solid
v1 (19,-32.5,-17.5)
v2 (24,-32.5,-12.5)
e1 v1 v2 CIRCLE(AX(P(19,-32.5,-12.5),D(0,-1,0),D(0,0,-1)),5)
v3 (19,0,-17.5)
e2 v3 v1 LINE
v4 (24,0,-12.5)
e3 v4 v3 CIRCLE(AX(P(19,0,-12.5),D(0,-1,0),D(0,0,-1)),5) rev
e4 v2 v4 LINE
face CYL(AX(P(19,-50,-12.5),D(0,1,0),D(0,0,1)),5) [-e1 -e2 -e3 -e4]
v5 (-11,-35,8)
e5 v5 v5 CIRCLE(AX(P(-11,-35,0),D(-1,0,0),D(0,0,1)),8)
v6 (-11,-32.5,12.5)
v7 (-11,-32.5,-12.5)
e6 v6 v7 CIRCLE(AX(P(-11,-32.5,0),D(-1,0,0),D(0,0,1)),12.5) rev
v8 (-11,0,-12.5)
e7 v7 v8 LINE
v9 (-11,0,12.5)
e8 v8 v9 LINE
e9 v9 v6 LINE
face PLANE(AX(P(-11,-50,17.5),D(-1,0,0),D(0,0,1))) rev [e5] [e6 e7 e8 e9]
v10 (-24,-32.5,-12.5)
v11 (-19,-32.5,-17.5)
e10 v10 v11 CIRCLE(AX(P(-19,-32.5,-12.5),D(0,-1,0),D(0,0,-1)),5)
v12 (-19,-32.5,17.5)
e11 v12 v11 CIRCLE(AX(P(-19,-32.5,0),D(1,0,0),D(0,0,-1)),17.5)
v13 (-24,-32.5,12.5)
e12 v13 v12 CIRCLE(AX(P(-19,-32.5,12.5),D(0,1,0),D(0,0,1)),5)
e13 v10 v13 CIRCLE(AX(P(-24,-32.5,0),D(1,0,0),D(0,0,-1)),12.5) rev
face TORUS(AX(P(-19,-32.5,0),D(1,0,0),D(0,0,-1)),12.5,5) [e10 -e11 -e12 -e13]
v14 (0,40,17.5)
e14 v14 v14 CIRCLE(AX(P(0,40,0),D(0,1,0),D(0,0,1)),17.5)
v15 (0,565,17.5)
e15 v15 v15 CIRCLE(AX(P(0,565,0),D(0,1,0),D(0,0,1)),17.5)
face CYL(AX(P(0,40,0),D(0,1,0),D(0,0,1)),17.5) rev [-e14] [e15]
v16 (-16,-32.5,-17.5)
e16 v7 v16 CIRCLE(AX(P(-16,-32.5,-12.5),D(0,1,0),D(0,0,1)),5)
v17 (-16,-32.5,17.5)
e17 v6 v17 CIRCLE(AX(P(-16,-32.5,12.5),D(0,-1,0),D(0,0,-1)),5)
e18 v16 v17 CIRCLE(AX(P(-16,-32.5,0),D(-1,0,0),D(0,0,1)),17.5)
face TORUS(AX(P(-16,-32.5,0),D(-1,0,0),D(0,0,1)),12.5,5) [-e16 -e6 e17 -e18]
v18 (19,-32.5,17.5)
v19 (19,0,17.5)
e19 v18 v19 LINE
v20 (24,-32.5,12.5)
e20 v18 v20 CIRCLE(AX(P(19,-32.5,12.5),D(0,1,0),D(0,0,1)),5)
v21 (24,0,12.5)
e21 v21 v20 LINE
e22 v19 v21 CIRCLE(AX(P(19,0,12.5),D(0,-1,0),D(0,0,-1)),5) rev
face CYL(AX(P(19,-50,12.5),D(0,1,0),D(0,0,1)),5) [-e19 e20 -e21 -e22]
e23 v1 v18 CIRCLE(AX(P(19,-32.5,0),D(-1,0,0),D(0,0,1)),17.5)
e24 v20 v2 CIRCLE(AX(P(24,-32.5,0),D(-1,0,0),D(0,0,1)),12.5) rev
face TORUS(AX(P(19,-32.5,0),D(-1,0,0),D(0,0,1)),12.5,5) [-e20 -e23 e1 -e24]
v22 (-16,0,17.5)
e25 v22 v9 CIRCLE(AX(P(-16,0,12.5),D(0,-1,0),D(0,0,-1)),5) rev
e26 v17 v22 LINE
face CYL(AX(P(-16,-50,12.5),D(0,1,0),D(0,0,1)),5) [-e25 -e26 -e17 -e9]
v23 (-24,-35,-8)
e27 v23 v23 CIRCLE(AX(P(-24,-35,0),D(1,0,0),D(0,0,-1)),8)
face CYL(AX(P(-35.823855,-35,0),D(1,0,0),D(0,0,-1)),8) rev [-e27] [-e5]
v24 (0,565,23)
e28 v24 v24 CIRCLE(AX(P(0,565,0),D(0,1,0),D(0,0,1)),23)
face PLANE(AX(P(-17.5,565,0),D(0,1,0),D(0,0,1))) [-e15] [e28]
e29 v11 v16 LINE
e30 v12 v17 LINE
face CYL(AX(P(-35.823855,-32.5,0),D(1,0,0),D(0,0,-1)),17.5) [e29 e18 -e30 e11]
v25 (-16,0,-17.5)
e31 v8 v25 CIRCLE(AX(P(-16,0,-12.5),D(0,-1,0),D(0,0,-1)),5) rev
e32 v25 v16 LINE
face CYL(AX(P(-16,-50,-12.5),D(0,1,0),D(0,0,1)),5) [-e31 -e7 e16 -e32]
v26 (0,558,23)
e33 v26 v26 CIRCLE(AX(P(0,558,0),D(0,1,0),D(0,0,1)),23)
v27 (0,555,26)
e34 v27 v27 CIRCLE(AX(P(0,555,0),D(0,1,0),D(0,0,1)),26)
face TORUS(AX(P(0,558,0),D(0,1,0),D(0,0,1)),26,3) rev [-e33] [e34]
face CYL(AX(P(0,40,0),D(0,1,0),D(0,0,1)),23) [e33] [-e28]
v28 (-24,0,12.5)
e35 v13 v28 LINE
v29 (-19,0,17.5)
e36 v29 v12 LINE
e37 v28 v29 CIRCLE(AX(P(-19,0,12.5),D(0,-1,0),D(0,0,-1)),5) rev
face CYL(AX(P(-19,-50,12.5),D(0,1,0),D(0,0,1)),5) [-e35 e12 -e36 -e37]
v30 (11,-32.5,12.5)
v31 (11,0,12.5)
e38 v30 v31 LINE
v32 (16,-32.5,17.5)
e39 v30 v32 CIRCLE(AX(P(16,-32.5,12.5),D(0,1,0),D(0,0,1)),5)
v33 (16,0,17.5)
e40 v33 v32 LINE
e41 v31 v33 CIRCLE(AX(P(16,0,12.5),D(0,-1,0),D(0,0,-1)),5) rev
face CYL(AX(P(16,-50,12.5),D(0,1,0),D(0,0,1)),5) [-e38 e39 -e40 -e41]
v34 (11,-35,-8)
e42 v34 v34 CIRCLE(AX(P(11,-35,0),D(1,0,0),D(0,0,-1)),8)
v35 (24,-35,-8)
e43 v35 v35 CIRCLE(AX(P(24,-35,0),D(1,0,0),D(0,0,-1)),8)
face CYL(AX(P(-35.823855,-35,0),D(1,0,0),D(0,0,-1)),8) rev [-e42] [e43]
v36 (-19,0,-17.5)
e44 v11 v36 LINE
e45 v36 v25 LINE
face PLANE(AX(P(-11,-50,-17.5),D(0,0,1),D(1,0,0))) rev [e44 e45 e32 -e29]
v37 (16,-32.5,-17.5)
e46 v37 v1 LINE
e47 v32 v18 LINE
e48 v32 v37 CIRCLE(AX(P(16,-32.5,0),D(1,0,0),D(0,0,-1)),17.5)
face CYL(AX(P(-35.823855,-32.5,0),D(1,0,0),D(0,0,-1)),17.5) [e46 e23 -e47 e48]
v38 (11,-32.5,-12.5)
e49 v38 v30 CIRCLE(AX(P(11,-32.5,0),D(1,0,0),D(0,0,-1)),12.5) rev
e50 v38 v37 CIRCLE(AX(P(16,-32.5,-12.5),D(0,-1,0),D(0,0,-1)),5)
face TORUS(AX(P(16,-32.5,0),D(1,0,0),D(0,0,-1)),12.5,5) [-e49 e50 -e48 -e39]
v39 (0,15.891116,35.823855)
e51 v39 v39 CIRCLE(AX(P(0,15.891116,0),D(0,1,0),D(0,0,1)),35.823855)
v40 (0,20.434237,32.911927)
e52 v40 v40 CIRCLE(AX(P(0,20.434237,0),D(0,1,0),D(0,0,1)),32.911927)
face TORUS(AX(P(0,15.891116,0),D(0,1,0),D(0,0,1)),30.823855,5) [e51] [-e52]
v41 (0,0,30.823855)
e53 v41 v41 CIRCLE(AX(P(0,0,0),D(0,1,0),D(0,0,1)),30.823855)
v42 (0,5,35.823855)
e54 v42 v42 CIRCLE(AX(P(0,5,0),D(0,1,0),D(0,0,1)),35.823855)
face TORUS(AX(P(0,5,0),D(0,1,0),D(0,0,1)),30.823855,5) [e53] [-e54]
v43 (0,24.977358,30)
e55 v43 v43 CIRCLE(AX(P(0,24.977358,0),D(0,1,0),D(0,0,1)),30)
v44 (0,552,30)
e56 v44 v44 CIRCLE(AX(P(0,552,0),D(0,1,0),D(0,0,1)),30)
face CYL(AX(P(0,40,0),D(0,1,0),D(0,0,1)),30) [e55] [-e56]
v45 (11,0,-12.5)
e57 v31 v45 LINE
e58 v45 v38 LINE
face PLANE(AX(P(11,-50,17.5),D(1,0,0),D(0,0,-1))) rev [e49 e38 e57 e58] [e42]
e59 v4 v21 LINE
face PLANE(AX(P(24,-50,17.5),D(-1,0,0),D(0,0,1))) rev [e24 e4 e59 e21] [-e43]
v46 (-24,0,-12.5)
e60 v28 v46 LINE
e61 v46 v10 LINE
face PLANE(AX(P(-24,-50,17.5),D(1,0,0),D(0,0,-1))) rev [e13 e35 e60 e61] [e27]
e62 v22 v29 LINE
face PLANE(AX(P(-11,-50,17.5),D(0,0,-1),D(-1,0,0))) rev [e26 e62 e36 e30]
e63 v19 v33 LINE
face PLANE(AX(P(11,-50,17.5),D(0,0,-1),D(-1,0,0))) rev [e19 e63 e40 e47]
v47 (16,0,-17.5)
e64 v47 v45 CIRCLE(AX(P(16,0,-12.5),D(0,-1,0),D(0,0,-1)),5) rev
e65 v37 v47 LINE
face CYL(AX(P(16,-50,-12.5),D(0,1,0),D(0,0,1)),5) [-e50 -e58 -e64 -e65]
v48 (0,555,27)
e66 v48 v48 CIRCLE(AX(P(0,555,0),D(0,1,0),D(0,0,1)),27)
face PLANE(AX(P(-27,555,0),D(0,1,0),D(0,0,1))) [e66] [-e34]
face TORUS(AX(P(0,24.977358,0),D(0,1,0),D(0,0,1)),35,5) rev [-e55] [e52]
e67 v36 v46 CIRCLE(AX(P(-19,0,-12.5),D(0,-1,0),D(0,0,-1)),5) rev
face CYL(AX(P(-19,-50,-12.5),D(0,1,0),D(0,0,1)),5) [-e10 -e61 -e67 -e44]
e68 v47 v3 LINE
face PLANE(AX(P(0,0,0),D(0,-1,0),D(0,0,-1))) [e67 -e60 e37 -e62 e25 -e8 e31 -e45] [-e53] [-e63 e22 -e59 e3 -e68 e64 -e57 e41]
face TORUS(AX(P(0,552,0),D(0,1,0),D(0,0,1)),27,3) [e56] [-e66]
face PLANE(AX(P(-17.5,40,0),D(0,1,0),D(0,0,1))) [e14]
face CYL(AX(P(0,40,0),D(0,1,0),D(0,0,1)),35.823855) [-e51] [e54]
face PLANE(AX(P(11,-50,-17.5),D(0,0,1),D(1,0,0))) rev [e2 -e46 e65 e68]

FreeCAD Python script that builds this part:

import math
import FreeCAD as App
import Part
import Sketcher

V = App.Vector
Q = App.Units.Quantity


def edges_at(feature, points):
    """Names of the edges that pass closest to the given points."""
    edges = feature.Shape.Edges
    near = lambda p: min(range(len(edges)), key=lambda i: edges[i].distToShape(Part.Vertex(*p))[0])
    return sorted({f"Edge{near(p) + 1}" for p in points})


def add_polygon(sketch, points):
    """Adds a closed chain of lines whose ends are joined by coincident constraints."""
    first, n = sketch.GeometryCount, len(points)
    for a, b in zip(points, points[1:] + points[:1]):
        sketch.addGeometry(Part.LineSegment(App.Vector(*a, 0), App.Vector(*b, 0)), False)
    for i in range(n):
        sketch.addConstraint(Sketcher.Constraint("Coincident", first + i, 2, first + (i + 1) % n, 1))

doc = App.newDocument("Part")
body = doc.addObject("PartDesign::Body", "Body")

sketch1 = body.newObject("Sketcher::SketchObject", "Sketch")
sketch1.AttachmentSupport = (doc.getObject("XY_Plane"), [""])
sketch1.MapMode = "FlatFace"
sketch1.addGeometry([
    Part.LineSegment(V(-30, 552, 0), V(-30, 25, 0)),
    Part.ArcOfCircle(Part.Circle(V(-35, 25, 0), V(0, 0, 1), 5), math.radians(-65), math.radians(0)),
    Part.ArcOfCircle(Part.Circle(V(-30.8, 15.9, 0), V(0, 0, 1), 5), math.radians(115), math.radians(180)),
    Part.LineSegment(V(-35.8, 15.9, 0), V(-35.8, 5, 0)),
    Part.ArcOfCircle(Part.Circle(V(-30.8, 5, 0), V(0, 0, 1), 5), math.radians(180), math.radians(270)),
    Part.LineSegment(V(-30.8, 0, 0), V(0, 0, 0)),
    Part.LineSegment(V(0, 0, 0), V(0, 40, 0)),
    Part.LineSegment(V(0, 40, 0), V(-17.5, 40, 0)),
    Part.LineSegment(V(-17.5, 40, 0), V(-17.5, 565, 0)),
    Part.LineSegment(V(-17.5, 565, 0), V(-23, 565, 0)),
    Part.LineSegment(V(-23, 565, 0), V(-23, 558, 0)),
    Part.ArcOfCircle(Part.Circle(V(-26, 558, 0), V(0, 0, 1), 3), math.radians(-90), math.radians(0)),
    Part.LineSegment(V(-26, 555, 0), V(-27, 555, 0)),
    Part.ArcOfCircle(Part.Circle(V(-27, 552, 0), V(0, 0, 1), 3), math.radians(90), math.radians(180)),
], False)
sketch1.addConstraint([
    Sketcher.Constraint("Tangent", 0, 2, 1, 2),
    Sketcher.Constraint("Tangent", 1, 1, 2, 1),
    Sketcher.Constraint("Tangent", 2, 2, 3, 1),
    Sketcher.Constraint("Tangent", 3, 2, 4, 1),
    Sketcher.Constraint("Tangent", 4, 2, 5, 1),
    Sketcher.Constraint("Coincident", 5, 2, 6, 1),
    Sketcher.Constraint("Coincident", 6, 2, 7, 1),
    Sketcher.Constraint("Coincident", 7, 2, 8, 1),
    Sketcher.Constraint("Coincident", 8, 2, 9, 1),
    Sketcher.Constraint("Coincident", 9, 2, 10, 1),
    Sketcher.Constraint("Tangent", 10, 2, 11, 2),
    Sketcher.Constraint("Tangent", 11, 1, 12, 1),
    Sketcher.Constraint("Tangent", 12, 2, 13, 1),
    Sketcher.Constraint("Tangent", 13, 2, 0, 1),
    Sketcher.Constraint("Vertical", 0),
    Sketcher.Constraint("Vertical", 3),
    Sketcher.Constraint("Horizontal", 5),
    Sketcher.Constraint("Vertical", 6),
    Sketcher.Constraint("Horizontal", 7),
    Sketcher.Constraint("Vertical", 8),
    Sketcher.Constraint("Horizontal", 9),
    Sketcher.Constraint("Vertical", 10),
    Sketcher.Constraint("Horizontal", 12),
    Sketcher.Constraint("Coincident", 5, 2, -1, 1),
    Sketcher.Constraint("Equal", 1, 2),
    Sketcher.Constraint("Equal", 2, 4),
    Sketcher.Constraint("Equal", 11, 13),
    Sketcher.Constraint("Radius", 1, Q("5 mm")),
    Sketcher.Constraint("Radius", 11, Q("3 mm")),
    Sketcher.Constraint("DistanceX", 12, 2, 12, 1, Q("1 mm")),
    Sketcher.Constraint("DistanceY", 6, 1, 6, 2, Q("40 mm")),
    Sketcher.Constraint("DistanceY", 8, 1, 8, 2, Q("525 mm")),
    Sketcher.Constraint("DistanceY", 10, 2, 10, 1, Q("7 mm")),
    Sketcher.Constraint("DistanceX", 7, 2, 7, 1, Q("17.5 mm")),
    Sketcher.Constraint("DistanceX", 9, 2, 9, 1, Q("5.5 mm")),
    Sketcher.Constraint("DistanceY", 0, 2, 0, 1, Q("527.022642 mm")),
    Sketcher.Constraint("DistanceX", 5, 1, 5, 2, Q("30.823855 mm")),
])
revolution = body.newObject("PartDesign::Revolution", "Revolution")
revolution.Profile = sketch1
revolution.ReferenceAxis = (sketch1, ["V_Axis"])
revolution.Angle = 360

sketch2 = body.newObject("Sketcher::SketchObject", "Sketch001")
sketch2.AttachmentSupport = (doc.getObject("XZ_Plane"), [""])
sketch2.MapMode = "FlatFace"
add_polygon(sketch2, [(11, 18), (11, -18), (24, -18), (24, 18)])
add_polygon(sketch2, [(-24, 18), (-24, -18), (-11, -18), (-11, 18)])
sketch2.addConstraint([
    Sketcher.Constraint("Vertical", 0),
    Sketcher.Constraint("Horizontal", 1),
    Sketcher.Constraint("Vertical", 2),
    Sketcher.Constraint("Horizontal", 3),
    Sketcher.Constraint("Vertical", 4),
    Sketcher.Constraint("Horizontal", 5),
    Sketcher.Constraint("Vertical", 6),
    Sketcher.Constraint("Horizontal", 7),
    Sketcher.Constraint("Symmetric", 2, 2, 4, 2, -1, 1),
    Sketcher.Constraint("Symmetric", 0, 2, 6, 2, -1, 1),
    Sketcher.Constraint("Horizontal", 1, 2, 4, 2),
    Sketcher.Constraint("DistanceX", 1, 1, 1, 2, Q("13 mm")),
    Sketcher.Constraint("DistanceY", 0, 2, 0, 1, Q("35 mm")),
    Sketcher.Constraint("DistanceX", -1, 1, 0, 2, Q("11 mm")),
])
pad1 = body.newObject("PartDesign::Pad", "Pad")
pad1.Profile = sketch2
pad1.Length = 50

sketch3 = body.newObject("Sketcher::SketchObject", "Sketch002")
sketch3.AttachmentSupport = (doc.getObject("YZ_Plane"), [""])
sketch3.MapMode = "FlatFace"
sketch3.AttachmentOffset = App.Placement(V(0, 0, 24), App.Rotation())
sketch3.addGeometry([
    Part.ArcOfCircle(Part.Circle(V(-33, 0, 0), V(0, 0, 1), 17), math.radians(90), math.radians(180)),
    Part.LineSegment(V(-32, 18, 0), V(-50, 18, 0)),
    Part.LineSegment(V(-50, 18, 0), V(-50, 0, 0)),
    Part.ArcOfCircle(Part.Circle(V(-33, 0, 0), V(0, 0, 1), 17), math.radians(180), math.radians(270)),
    Part.LineSegment(V(-50, 0, 0), V(-50, -18, 0)),
    Part.LineSegment(V(-50, -18, 0), V(-32, -18, 0)),
    Part.Circle(V(-35, 0, 0), V(0, 0, 1), 8),
], False)
sketch3.addConstraint([
    Sketcher.Constraint("Tangent", 0, 1, 1, 1),
    Sketcher.Constraint("Coincident", 1, 2, 2, 1),
    Sketcher.Constraint("Tangent", 2, 2, 0, 2),
    Sketcher.Constraint("Tangent", 3, 1, 4, 1),
    Sketcher.Constraint("Coincident", 4, 2, 5, 1),
    Sketcher.Constraint("Tangent", 5, 2, 3, 2),
    Sketcher.Constraint("Horizontal", 1),
    Sketcher.Constraint("Vertical", 2),
    Sketcher.Constraint("Vertical", 4),
    Sketcher.Constraint("Horizontal", 5),
    Sketcher.Constraint("Coincident", 3, 3, 0, 3),
    Sketcher.Constraint("Equal", 0, 3),
    Sketcher.Constraint("PointOnObject", 0, 3, -1),
    Sketcher.Constraint("PointOnObject", 6, 3, -1),
    Sketcher.Constraint("Diameter", 6, Q("16 mm")),
    Sketcher.Constraint("Radius", 0, Q("17.5 mm")),
    Sketcher.Constraint("DistanceX", 6, 3, -1, 1, Q("35 mm")),
    Sketcher.Constraint("DistanceX", 1, 2, -1, 1, Q("50 mm")),
])
pocket1 = body.newObject("PartDesign::Pocket", "Pocket")
pocket1.Profile = sketch3
pocket1.Type = "ThroughAll"
doc.recompute()

fillet = body.newObject("PartDesign::Fillet", "Fillet")
fillet.Base = (pocket1, edges_at(pocket1, [
    (-11, -16.25, -17.5),
    (-24, -16.25, -17.5),
    (24, -16.25, -17.5),
    (11, -16.25, -17.5),
    (24, -44.874, 12.374),
    (11, -44.874, 12.374),
    (-11, -44.874, 12.374),
    (-24, -44.874, 12.374),
    (-24, -16.25, 17.5),
    (-11, -16.25, 17.5),
    (11, -16.25, 17.5),
    (24, -16.25, 17.5),
]))
fillet.Radius = 5

doc.recompute()
